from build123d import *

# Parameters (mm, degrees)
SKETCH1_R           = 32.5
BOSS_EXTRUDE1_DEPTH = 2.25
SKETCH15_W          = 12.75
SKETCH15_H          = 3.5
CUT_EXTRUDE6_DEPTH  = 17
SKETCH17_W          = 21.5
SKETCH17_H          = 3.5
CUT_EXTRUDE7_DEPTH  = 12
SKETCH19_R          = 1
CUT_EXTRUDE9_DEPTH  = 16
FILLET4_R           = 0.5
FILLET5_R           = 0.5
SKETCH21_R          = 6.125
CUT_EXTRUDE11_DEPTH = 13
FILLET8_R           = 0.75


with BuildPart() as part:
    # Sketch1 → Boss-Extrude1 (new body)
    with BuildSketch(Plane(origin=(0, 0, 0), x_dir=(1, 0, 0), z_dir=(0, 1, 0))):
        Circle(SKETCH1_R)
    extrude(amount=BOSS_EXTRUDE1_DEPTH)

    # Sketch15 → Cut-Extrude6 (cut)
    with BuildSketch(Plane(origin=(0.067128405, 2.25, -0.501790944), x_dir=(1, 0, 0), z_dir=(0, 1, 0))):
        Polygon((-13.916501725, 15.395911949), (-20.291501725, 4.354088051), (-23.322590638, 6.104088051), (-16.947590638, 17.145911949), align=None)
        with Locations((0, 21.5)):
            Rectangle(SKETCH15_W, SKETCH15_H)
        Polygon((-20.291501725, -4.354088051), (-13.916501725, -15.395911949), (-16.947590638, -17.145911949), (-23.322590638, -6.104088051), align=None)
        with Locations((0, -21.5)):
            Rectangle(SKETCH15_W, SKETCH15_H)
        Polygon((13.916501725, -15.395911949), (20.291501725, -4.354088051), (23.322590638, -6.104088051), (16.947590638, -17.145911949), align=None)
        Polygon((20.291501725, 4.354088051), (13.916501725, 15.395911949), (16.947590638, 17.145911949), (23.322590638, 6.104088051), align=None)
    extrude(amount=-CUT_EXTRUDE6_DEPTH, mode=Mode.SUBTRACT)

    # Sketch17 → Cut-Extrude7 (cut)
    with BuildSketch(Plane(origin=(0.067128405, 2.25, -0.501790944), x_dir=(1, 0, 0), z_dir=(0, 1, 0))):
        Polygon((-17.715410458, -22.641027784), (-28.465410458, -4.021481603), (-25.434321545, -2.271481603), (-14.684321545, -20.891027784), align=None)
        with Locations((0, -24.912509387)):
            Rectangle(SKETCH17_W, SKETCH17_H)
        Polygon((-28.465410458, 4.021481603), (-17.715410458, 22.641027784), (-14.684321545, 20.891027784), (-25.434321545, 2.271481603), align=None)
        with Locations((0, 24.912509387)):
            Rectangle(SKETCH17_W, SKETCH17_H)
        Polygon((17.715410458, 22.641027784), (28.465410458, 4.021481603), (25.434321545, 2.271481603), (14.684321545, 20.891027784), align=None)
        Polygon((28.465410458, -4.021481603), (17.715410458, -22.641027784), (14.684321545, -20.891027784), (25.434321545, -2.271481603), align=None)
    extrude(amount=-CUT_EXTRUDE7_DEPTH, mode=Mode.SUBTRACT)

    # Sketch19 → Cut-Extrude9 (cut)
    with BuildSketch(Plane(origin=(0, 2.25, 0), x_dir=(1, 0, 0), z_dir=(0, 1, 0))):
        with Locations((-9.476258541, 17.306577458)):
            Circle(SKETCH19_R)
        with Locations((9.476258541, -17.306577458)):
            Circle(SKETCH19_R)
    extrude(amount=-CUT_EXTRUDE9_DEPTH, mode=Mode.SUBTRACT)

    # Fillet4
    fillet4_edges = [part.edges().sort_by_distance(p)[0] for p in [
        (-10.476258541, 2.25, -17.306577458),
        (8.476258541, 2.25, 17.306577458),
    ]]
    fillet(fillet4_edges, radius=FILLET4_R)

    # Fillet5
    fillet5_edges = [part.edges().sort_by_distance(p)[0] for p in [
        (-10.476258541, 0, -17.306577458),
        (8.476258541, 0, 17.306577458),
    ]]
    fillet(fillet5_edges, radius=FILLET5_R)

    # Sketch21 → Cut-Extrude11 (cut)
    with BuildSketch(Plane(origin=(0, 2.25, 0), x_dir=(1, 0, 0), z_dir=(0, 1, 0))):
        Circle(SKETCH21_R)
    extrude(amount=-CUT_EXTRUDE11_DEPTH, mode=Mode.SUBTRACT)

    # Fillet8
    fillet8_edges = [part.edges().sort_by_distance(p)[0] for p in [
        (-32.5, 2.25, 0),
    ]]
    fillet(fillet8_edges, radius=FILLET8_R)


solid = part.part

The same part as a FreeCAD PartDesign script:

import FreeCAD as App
import Part
import Sketcher
Q = App.Units.Quantity


def edges_at(feature, points):
    """Names of the edges that pass closest to the given points."""
    edges = feature.Shape.Edges
    near = lambda p: min(range(len(edges)), key=lambda i: edges[i].distToShape(Part.Vertex(*p))[0])
    return sorted({f"Edge{near(p) + 1}" for p in points})

doc = App.newDocument("Part")
body = doc.addObject("PartDesign::Body", "Body")

sketch1 = body.newObject("Sketcher::SketchObject", "Sketch")
sketch1.AttachmentSupport = (doc.getObject("XZ_Plane"), [""])
sketch1.MapMode = "FlatFace"
sketch1.addGeometry(Part.Circle(App.Vector(0, 0, 0), App.Vector(0, 0, 1), 32.5), False)
sketch1.addConstraint([
    Sketcher.Constraint("Coincident", 0, 3, -1, 1),
    Sketcher.Constraint("Diameter", 0, 65.0),
])
pad1 = body.newObject("PartDesign::Pad", "Pad")
pad1.Profile = sketch1
pad1.Length = 2.25
pad1.Reversed = True

sketch2 = body.newObject("Sketcher::SketchObject", "Sketch001")
sketch2.AttachmentSupport = (doc.getObject("XZ_Plane"), [""])
sketch2.MapMode = "FlatFace"
sketch2.AttachmentOffset = App.Placement(App.Vector(0, 0, -2.25), App.Rotation())
sketch2.addGeometry([
    Part.LineSegment(App.Vector(-20.224373, -4.855879, 0), App.Vector(-13.849373, -15.897703, 0)),
    Part.LineSegment(App.Vector(-13.849373, -15.897703, 0), App.Vector(-16.880462, -17.647703, 0)),
    Part.LineSegment(App.Vector(-16.880462, -17.647703, 0), App.Vector(-23.255462, -6.605879, 0)),
    Part.LineSegment(App.Vector(-23.255462, -6.605879, 0), App.Vector(-20.224373, -4.855879, 0)),
    Part.LineSegment(App.Vector(-6.307872, -23.751791, 0), App.Vector(-6.307872, -20.251791, 0)),
    Part.LineSegment(App.Vector(-6.307872, -20.251791, 0), App.Vector(6.442128, -20.251791, 0)),
    Part.LineSegment(App.Vector(6.442128, -20.251791, 0), App.Vector(6.442128, -23.751791, 0)),
    Part.LineSegment(App.Vector(6.442128, -23.751791, 0), App.Vector(-6.307872, -23.751791, 0)),
    Part.LineSegment(App.Vector(-13.849373, 14.894121, 0), App.Vector(-20.224373, 3.852297, 0)),
    Part.LineSegment(App.Vector(-20.224373, 3.852297, 0), App.Vector(-23.255462, 5.602297, 0)),
    Part.LineSegment(App.Vector(-23.255462, 5.602297, 0), App.Vector(-16.880462, 16.644121, 0)),
    Part.LineSegment(App.Vector(-16.880462, 16.644121, 0), App.Vector(-13.849373, 14.894121, 0)),
    Part.LineSegment(App.Vector(-6.307872, 19.248209, 0), App.Vector(-6.307872, 22.748209, 0)),
    Part.LineSegment(App.Vector(-6.307872, 22.748209, 0), App.Vector(6.442128, 22.748209, 0)),
    Part.LineSegment(App.Vector(6.442128, 22.748209, 0), App.Vector(6.442128, 19.248209, 0)),
    Part.LineSegment(App.Vector(6.442128, 19.248209, 0), App.Vector(-6.307872, 19.248209, 0)),
    Part.LineSegment(App.Vector(20.35863, 3.852297, 0), App.Vector(13.98363, 14.894121, 0)),
    Part.LineSegment(App.Vector(13.98363, 14.894121, 0), App.Vector(17.014719, 16.644121, 0)),
    Part.LineSegment(App.Vector(17.014719, 16.644121, 0), App.Vector(23.389719, 5.602297, 0)),
    Part.LineSegment(App.Vector(23.389719, 5.602297, 0), App.Vector(20.35863, 3.852297, 0)),
    Part.LineSegment(App.Vector(13.98363, -15.897703, 0), App.Vector(20.35863, -4.855879, 0)),
    Part.LineSegment(App.Vector(20.35863, -4.855879, 0), App.Vector(23.389719, -6.605879, 0)),
    Part.LineSegment(App.Vector(23.389719, -6.605879, 0), App.Vector(17.014719, -17.647703, 0)),
    Part.LineSegment(App.Vector(17.014719, -17.647703, 0), App.Vector(13.98363, -15.897703, 0)),
], False)
sketch2.addConstraint([
    Sketcher.Constraint("Coincident", 0, 2, 1, 1),
    Sketcher.Constraint("Coincident", 1, 2, 2, 1),
    Sketcher.Constraint("Coincident", 2, 2, 3, 1),
    Sketcher.Constraint("Coincident", 3, 2, 0, 1),
    Sketcher.Constraint("Coincident", 4, 2, 5, 1),
    Sketcher.Constraint("Coincident", 5, 2, 6, 1),
    Sketcher.Constraint("Coincident", 6, 2, 7, 1),
    Sketcher.Constraint("Coincident", 7, 2, 4, 1),
    Sketcher.Constraint("Coincident", 8, 2, 9, 1),
    Sketcher.Constraint("Coincident", 9, 2, 10, 1),
    Sketcher.Constraint("Coincident", 10, 2, 11, 1),
    Sketcher.Constraint("Coincident", 11, 2, 8, 1),
    Sketcher.Constraint("Coincident", 12, 2, 13, 1),
    Sketcher.Constraint("Coincident", 13, 2, 14, 1),
    Sketcher.Constraint("Coincident", 14, 2, 15, 1),
    Sketcher.Constraint("Coincident", 15, 2, 12, 1),
    Sketcher.Constraint("Coincident", 16, 2, 17, 1),
    Sketcher.Constraint("Coincident", 17, 2, 18, 1),
    Sketcher.Constraint("Coincident", 18, 2, 19, 1),
    Sketcher.Constraint("Coincident", 19, 2, 16, 1),
    Sketcher.Constraint("Coincident", 20, 2, 21, 1),
    Sketcher.Constraint("Coincident", 21, 2, 22, 1),
    Sketcher.Constraint("Coincident", 22, 2, 23, 1),
    Sketcher.Constraint("Coincident", 23, 2, 20, 1),
    Sketcher.Constraint("Vertical", 4),
    Sketcher.Constraint("Horizontal", 5),
    Sketcher.Constraint("Vertical", 6),
    Sketcher.Constraint("Horizontal", 7),
    Sketcher.Constraint("Vertical", 12),
    Sketcher.Constraint("Horizontal", 13),
    Sketcher.Constraint("Vertical", 14),
    Sketcher.Constraint("Horizontal", 15),
    Sketcher.Constraint("Perpendicular", 0, 1),
    Sketcher.Constraint("Perpendicular", 1, 2),
    Sketcher.Constraint("Perpendicular", 2, 3),
    Sketcher.Constraint("Perpendicular", 8, 9),
    Sketcher.Constraint("Perpendicular", 9, 10),
    Sketcher.Constraint("Perpendicular", 10, 11),
    Sketcher.Constraint("Perpendicular", 3, 16),
    Sketcher.Constraint("Perpendicular", 16, 17),
    Sketcher.Constraint("Perpendicular", 17, 18),
    Sketcher.Constraint("Perpendicular", 18, 19),
    Sketcher.Constraint("Perpendicular", 11, 20),
    Sketcher.Constraint("Perpendicular", 20, 21),
    Sketcher.Constraint("Perpendicular", 21, 22),
    Sketcher.Constraint("Perpendicular", 22, 23),
    Sketcher.Constraint("Horizontal", 11, 2, 16, 2),
    Sketcher.Constraint("Horizontal", 10, 2, 17, 2),
    Sketcher.Constraint("Horizontal", 9, 2, 18, 2),
    Sketcher.Constraint("Horizontal", 3, 2, 20, 2),
    Sketcher.Constraint("Horizontal", 2, 2, 21, 2),
    Sketcher.Constraint("Horizontal", 1, 2, 22, 2),
    Sketcher.Constraint("Vertical", 3, 2, 8, 2),
    Sketcher.Constraint("Vertical", 2, 2, 9, 2),
    Sketcher.Constraint("Vertical", 1, 2, 10, 2),
    Sketcher.Constraint("Vertical", 7, 2, 12, 2),
    Sketcher.Constraint("Vertical", 6, 2, 13, 2),
    Sketcher.Constraint("Vertical", 19, 2, 20, 2),
    Sketcher.Constraint("Vertical", 18, 2, 21, 2),
    Sketcher.Constraint("Equal", 6, 12),
    Sketcher.Constraint("Angle", 0, Q("-60 deg")),
    Sketcher.Constraint("DistanceY", 4, 1, 4, 2, 3.5),
    Sketcher.Constraint("Distance", 1, 3.5),
    Sketcher.Constraint("DistanceX", 5, 1, 5, 2, 12.75),
    Sketcher.Constraint("DistanceY", 1, 2, 8, 2, 21.5),
    Sketcher.Constraint("Distance", 0, 12.75),
    Sketcher.Constraint("DistanceX", 0, 2, 4, 2, 7.541502),
    Sketcher.Constraint("DistanceX", 14, 2, 16, 2, 7.541502),
    Sketcher.Constraint("DistanceY", 2, 2, -1, 1, 6.605879),
    Sketcher.Constraint("DistanceX", 4, 2, -1, 1, 6.307872),
    Sketcher.Constraint("DistanceY", 4, 2, -1, 1, 20.251791),
    Sketcher.Constraint("DistanceY", -1, 1, 12, 2, 22.748209),
])
pocket1 = body.newObject("PartDesign::Pocket", "Pocket")
pocket1.Profile = sketch2
pocket1.Length = 17
pocket1.Reversed = True

sketch3 = body.newObject("Sketcher::SketchObject", "Sketch002")
sketch3.AttachmentSupport = (doc.getObject("XZ_Plane"), [""])
sketch3.MapMode = "FlatFace"
sketch3.AttachmentOffset = App.Placement(App.Vector(0, 0, -2.25), App.Rotation())
sketch3.addGeometry([
    Part.LineSegment(App.Vector(-28.398282, 3.519691, 0), App.Vector(-17.648282, 22.139237, 0)),
    Part.LineSegment(App.Vector(-17.648282, 22.139237, 0), App.Vector(-14.617193, 20.389237, 0)),
    Part.LineSegment(App.Vector(-14.617193, 20.389237, 0), App.Vector(-25.367193, 1.769691, 0)),
    Part.LineSegment(App.Vector(-25.367193, 1.769691, 0), App.Vector(-28.398282, 3.519691, 0)),
    Part.LineSegment(App.Vector(-10.682872, 22.660718, 0), App.Vector(-10.682872, 26.160718, 0)),
    Part.LineSegment(App.Vector(-10.682872, 26.160718, 0), App.Vector(10.817128, 26.160718, 0)),
    Part.LineSegment(App.Vector(10.817128, 26.160718, 0), App.Vector(10.817128, 22.660718, 0)),
    Part.LineSegment(App.Vector(10.817128, 22.660718, 0), App.Vector(-10.682872, 22.660718, 0)),
    Part.LineSegment(App.Vector(-17.648282, -23.142819, 0), App.Vector(-28.398282, -4.523273, 0)),
    Part.LineSegment(App.Vector(-28.398282, -4.523273, 0), App.Vector(-25.367193, -2.773273, 0)),
    Part.LineSegment(App.Vector(-25.367193, -2.773273, 0), App.Vector(-14.617193, -21.392819, 0)),
    Part.LineSegment(App.Vector(-14.617193, -21.392819, 0), App.Vector(-17.648282, -23.142819, 0)),
    Part.LineSegment(App.Vector(-10.682872, -27.1643, 0), App.Vector(-10.682872, -23.6643, 0)),
    Part.LineSegment(App.Vector(-10.682872, -23.6643, 0), App.Vector(10.817128, -23.6643, 0)),
    Part.LineSegment(App.Vector(10.817128, -23.6643, 0), App.Vector(10.817128, -27.1643, 0)),
    Part.LineSegment(App.Vector(10.817128, -27.1643, 0), App.Vector(-10.682872, -27.1643, 0)),
    Part.LineSegment(App.Vector(28.532539, -4.523273, 0), App.Vector(17.782539, -23.142819, 0)),
    Part.LineSegment(App.Vector(17.782539, -23.142819, 0), App.Vector(14.75145, -21.392819, 0)),
    Part.LineSegment(App.Vector(14.75145, -21.392819, 0), App.Vector(25.50145, -2.773273, 0)),
    Part.LineSegment(App.Vector(25.50145, -2.773273, 0), App.Vector(28.532539, -4.523273, 0)),
    Part.LineSegment(App.Vector(17.782539, 22.139237, 0), App.Vector(28.532539, 3.519691, 0)),
    Part.LineSegment(App.Vector(28.532539, 3.519691, 0), App.Vector(25.50145, 1.769691, 0)),
    Part.LineSegment(App.Vector(25.50145, 1.769691, 0), App.Vector(14.75145, 20.389237, 0)),
    Part.LineSegment(App.Vector(14.75145, 20.389237, 0), App.Vector(17.782539, 22.139237, 0)),
], False)
sketch3.addConstraint([
    Sketcher.Constraint("Coincident", 0, 2, 1, 1),
    Sketcher.Constraint("Coincident", 1, 2, 2, 1),
    Sketcher.Constraint("Coincident", 2, 2, 3, 1),
    Sketcher.Constraint("Coincident", 3, 2, 0, 1),
    Sketcher.Constraint("Coincident", 4, 2, 5, 1),
    Sketcher.Constraint("Coincident", 5, 2, 6, 1),
    Sketcher.Constraint("Coincident", 6, 2, 7, 1),
    Sketcher.Constraint("Coincident", 7, 2, 4, 1),
    Sketcher.Constraint("Coincident", 8, 2, 9, 1),
    Sketcher.Constraint("Coincident", 9, 2, 10, 1),
    Sketcher.Constraint("Coincident", 10, 2, 11, 1),
    Sketcher.Constraint("Coincident", 11, 2, 8, 1),
    Sketcher.Constraint("Coincident", 12, 2, 13, 1),
    Sketcher.Constraint("Coincident", 13, 2, 14, 1),
    Sketcher.Constraint("Coincident", 14, 2, 15, 1),
    Sketcher.Constraint("Coincident", 15, 2, 12, 1),
    Sketcher.Constraint("Coincident", 16, 2, 17, 1),
    Sketcher.Constraint("Coincident", 17, 2, 18, 1),
    Sketcher.Constraint("Coincident", 18, 2, 19, 1),
    Sketcher.Constraint("Coincident", 19, 2, 16, 1),
    Sketcher.Constraint("Coincident", 20, 2, 21, 1),
    Sketcher.Constraint("Coincident", 21, 2, 22, 1),
    Sketcher.Constraint("Coincident", 22, 2, 23, 1),
    Sketcher.Constraint("Coincident", 23, 2, 20, 1),
    Sketcher.Constraint("Vertical", 4),
    Sketcher.Constraint("Horizontal", 5),
    Sketcher.Constraint("Vertical", 6),
    Sketcher.Constraint("Horizontal", 7),
    Sketcher.Constraint("Vertical", 12),
    Sketcher.Constraint("Horizontal", 13),
    Sketcher.Constraint("Vertical", 14),
    Sketcher.Constraint("Horizontal", 15),
    Sketcher.Constraint("Perpendicular", 0, 1),
    Sketcher.Constraint("Perpendicular", 1, 2),
    Sketcher.Constraint("Perpendicular", 2, 3),
    Sketcher.Constraint("Perpendicular", 8, 9),
    Sketcher.Constraint("Perpendicular", 9, 10),
    Sketcher.Constraint("Perpendicular", 10, 11),
    Sketcher.Constraint("Perpendicular", 3, 16),
    Sketcher.Constraint("Perpendicular", 16, 17),
    Sketcher.Constraint("Perpendicular", 17, 18),
    Sketcher.Constraint("Perpendicular", 18, 19),
    Sketcher.Constraint("Perpendicular", 11, 20),
    Sketcher.Constraint("Perpendicular", 20, 21),
    Sketcher.Constraint("Perpendicular", 21, 22),
    Sketcher.Constraint("Perpendicular", 22, 23),
    Sketcher.Constraint("Horizontal", 11, 2, 16, 2),
    Sketcher.Constraint("Horizontal", 10, 2, 17, 2),
    Sketcher.Constraint("Horizontal", 9, 2, 18, 2),
    Sketcher.Constraint("Horizontal", 3, 2, 20, 2),
    Sketcher.Constraint("Horizontal", 2, 2, 21, 2),
    Sketcher.Constraint("Horizontal", 1, 2, 22, 2),
    Sketcher.Constraint("Vertical", 3, 2, 8, 2),
    Sketcher.Constraint("Vertical", 2, 2, 9, 2),
    Sketcher.Constraint("Vertical", 1, 2, 10, 2),
    Sketcher.Constraint("Vertical", 7, 2, 12, 2),
    Sketcher.Constraint("Vertical", 6, 2, 13, 2),
    Sketcher.Constraint("Vertical", 19, 2, 20, 2),
    Sketcher.Constraint("Vertical", 18, 2, 21, 2),
    Sketcher.Constraint("Equal", 6, 12),
    Sketcher.Constraint("Angle", 0, Q("60 deg")),
    Sketcher.Constraint("DistanceX", 5, 1, 5, 2, 21.5),
    Sketcher.Constraint("DistanceY", 4, 1, 4, 2, 3.5),
    Sketcher.Constraint("Distance", 0, 21.5),
    Sketcher.Constraint("Distance", 1, 3.5),
    Sketcher.Constraint("DistanceY", 12, 2, -1, 1, 23.6643),
    Sketcher.Constraint("DistanceY", -1, 1, 2, 2, 1.769691),
    Sketcher.Constraint("DistanceX", 4, 2, -1, 1, 10.682872),
    Sketcher.Constraint("DistanceY", -1, 1, 4, 2, 26.160718),
    Sketcher.Constraint("DistanceY", 10, 2, -1, 1, 21.392819),
    Sketcher.Constraint("DistanceX", -1, 1, 16, 2, 17.782539),
    Sketcher.Constraint("DistanceX", 1, 2, 4, 2, 3.934322),
])
pocket2 = body.newObject("PartDesign::Pocket", "Pocket001")
pocket2.Profile = sketch3
pocket2.Length = 12
pocket2.Reversed = True

sketch4 = body.newObject("Sketcher::SketchObject", "Sketch003")
sketch4.AttachmentSupport = (doc.getObject("XZ_Plane"), [""])
sketch4.MapMode = "FlatFace"
sketch4.AttachmentOffset = App.Placement(App.Vector(0, 0, -2.25), App.Rotation())
sketch4.addGeometry([
    Part.Circle(App.Vector(-9.476259, -17.306577, 0), App.Vector(0, 0, 1), 1),
    Part.Circle(App.Vector(9.476259, 17.306577, 0), App.Vector(0, 0, 1), 1),
], False)
sketch4.addConstraint([
    Sketcher.Constraint("Equal", 0, 1),
    Sketcher.Constraint("Symmetric", 0, 3, 1, 3, -1, 1),
    Sketcher.Constraint("Diameter", 0, 2.0),
    Sketcher.Constraint("DistanceX", 0, 3, -1, 1, 9.476259),
    Sketcher.Constraint("DistanceY", 0, 3, -1, 1, 17.306577),
])
pocket3 = body.newObject("PartDesign::Pocket", "Pocket002")
pocket3.Profile = sketch4
pocket3.Length = 16
pocket3.Reversed = True
doc.recompute()

fillet = body.newObject("PartDesign::Fillet", "Fillet")
fillet.Base = (pocket3, edges_at(pocket3, [(-10.476, 2.25, -17.307), (8.476, 2.25, 17.307)]))
fillet.Radius = 0.5
doc.recompute()

fillet2 = body.newObject("PartDesign::Fillet", "Fillet001")
fillet2.Base = (fillet, edges_at(fillet, [(-10.476, 0, -17.307), (8.476, 0, 17.307)]))
fillet2.Radius = 0.5

sketch5 = body.newObject("Sketcher::SketchObject", "Sketch004")
sketch5.AttachmentSupport = (doc.getObject("XZ_Plane"), [""])
sketch5.MapMode = "FlatFace"
sketch5.AttachmentOffset = App.Placement(App.Vector(0, 0, -2.25), App.Rotation())
sketch5.addGeometry(Part.Circle(App.Vector(0, 0, 0), App.Vector(0, 0, 1), 6.125), False)
sketch5.addConstraint([
    Sketcher.Constraint("Coincident", 0, 3, -1, 1),
    Sketcher.Constraint("Diameter", 0, 12.25),
])
pocket4 = body.newObject("PartDesign::Pocket", "Pocket003")
pocket4.Profile = sketch5
pocket4.Length = 13
pocket4.Reversed = True
doc.recompute()

fillet3 = body.newObject("PartDesign::Fillet", "Fillet002")
fillet3.Base = (pocket4, edges_at(pocket4, [(-32.5, 2.25, 0)]))
fillet3.Radius = 0.75

doc.recompute()
